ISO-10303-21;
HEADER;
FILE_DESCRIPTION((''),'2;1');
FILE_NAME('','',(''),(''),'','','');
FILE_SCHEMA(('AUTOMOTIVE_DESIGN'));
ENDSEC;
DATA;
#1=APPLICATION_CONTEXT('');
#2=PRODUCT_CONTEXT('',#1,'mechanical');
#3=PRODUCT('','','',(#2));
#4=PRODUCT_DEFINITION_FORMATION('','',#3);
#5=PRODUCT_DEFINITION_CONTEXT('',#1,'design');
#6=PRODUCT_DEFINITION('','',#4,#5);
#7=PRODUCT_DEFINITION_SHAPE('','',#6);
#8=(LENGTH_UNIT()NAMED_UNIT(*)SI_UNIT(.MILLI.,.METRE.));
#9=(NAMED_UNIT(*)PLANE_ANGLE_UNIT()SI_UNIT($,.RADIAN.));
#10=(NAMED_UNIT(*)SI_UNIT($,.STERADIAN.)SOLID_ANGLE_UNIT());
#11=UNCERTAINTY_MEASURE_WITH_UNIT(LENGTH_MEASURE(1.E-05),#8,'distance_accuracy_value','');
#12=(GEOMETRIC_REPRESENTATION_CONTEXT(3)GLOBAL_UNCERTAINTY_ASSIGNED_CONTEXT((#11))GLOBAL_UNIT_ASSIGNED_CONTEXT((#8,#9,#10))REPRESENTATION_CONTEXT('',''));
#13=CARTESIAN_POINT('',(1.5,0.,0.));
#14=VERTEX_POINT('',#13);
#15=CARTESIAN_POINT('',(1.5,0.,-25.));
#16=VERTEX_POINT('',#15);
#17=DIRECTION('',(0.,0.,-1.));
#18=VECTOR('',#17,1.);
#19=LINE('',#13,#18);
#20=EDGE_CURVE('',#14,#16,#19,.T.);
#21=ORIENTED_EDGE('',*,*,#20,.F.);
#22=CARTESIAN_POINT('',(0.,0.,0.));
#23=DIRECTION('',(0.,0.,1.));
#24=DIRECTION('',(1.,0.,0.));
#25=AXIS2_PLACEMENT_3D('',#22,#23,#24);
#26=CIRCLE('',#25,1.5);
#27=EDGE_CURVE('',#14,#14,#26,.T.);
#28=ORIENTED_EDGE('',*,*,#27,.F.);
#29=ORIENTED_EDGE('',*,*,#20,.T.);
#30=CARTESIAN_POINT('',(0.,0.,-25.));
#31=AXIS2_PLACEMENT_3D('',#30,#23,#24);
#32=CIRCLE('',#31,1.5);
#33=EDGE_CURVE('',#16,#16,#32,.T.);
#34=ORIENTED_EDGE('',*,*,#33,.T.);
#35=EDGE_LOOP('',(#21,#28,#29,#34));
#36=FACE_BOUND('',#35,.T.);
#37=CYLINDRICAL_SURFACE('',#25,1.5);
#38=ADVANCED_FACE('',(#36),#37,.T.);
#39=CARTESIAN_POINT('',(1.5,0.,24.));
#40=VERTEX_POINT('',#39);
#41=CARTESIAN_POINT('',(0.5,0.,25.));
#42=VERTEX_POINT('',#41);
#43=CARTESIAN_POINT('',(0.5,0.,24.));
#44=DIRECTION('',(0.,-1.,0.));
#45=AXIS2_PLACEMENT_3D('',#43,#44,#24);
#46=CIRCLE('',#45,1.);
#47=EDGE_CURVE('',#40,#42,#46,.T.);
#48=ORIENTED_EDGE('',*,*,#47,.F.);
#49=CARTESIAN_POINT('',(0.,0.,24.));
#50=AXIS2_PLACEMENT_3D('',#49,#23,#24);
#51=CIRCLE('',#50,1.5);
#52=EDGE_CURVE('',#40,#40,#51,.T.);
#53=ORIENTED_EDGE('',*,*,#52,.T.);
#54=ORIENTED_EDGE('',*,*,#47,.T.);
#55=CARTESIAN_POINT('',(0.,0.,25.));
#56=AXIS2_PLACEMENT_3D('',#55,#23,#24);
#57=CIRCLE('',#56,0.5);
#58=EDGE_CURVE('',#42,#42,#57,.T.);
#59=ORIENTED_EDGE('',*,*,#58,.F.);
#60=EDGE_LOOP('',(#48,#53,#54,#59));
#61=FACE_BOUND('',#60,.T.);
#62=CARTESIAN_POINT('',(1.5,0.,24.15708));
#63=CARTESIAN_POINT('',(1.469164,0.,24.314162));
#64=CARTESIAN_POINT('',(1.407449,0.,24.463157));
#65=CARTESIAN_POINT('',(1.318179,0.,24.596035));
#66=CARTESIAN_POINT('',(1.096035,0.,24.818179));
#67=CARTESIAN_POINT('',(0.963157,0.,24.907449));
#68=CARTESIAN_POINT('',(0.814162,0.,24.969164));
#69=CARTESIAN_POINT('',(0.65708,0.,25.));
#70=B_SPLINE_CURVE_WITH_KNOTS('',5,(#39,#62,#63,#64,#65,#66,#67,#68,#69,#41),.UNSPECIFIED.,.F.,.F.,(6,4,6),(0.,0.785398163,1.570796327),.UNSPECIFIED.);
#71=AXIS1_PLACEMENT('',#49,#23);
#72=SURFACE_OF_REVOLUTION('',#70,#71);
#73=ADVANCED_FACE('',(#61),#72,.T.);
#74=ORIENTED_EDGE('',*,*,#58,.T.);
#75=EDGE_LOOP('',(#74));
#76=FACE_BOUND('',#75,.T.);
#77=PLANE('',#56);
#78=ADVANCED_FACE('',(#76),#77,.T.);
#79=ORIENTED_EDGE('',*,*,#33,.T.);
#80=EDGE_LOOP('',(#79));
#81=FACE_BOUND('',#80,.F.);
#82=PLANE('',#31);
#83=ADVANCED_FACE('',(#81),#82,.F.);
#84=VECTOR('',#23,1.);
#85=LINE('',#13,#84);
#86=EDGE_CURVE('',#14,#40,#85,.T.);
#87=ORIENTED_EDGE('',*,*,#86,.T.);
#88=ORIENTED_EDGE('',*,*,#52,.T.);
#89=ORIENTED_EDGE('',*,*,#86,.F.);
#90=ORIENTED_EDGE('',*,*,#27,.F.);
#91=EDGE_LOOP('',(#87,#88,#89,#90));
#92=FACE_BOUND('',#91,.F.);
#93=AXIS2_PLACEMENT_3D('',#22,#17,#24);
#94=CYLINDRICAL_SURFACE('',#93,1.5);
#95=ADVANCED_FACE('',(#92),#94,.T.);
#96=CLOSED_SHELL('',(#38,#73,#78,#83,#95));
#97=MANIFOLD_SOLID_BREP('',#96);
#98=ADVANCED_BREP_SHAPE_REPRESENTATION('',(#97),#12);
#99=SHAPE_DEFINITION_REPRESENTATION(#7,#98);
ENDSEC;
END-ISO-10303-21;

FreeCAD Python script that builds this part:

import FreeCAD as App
import Part
import Sketcher

V = App.Vector
Q = App.Units.Quantity


def edges_at(feature, points):
    """Names of the edges that pass closest to the given points."""
    edges = feature.Shape.Edges
    near = lambda p: min(range(len(edges)), key=lambda i: edges[i].distToShape(Part.Vertex(*p))[0])
    return sorted({f"Edge{near(p) + 1}" for p in points})

doc = App.newDocument("Part")
body = doc.addObject("PartDesign::Body", "Body")

# Sketch on XY plane
sketch1 = doc.addObject("Sketcher::SketchObject", "Sketch")
body.addObject(sketch1)
sketch1.AttachmentSupport = (doc.XY_Plane, [""])
sketch1.MapMode = "FlatFace"
sketch1.addGeometry(Part.Circle(V(0, 0, 0), V(0, 0, 1), 1.5), False)
sketch1.addConstraint(Sketcher.Constraint("Coincident", 0, 3, -1, 1))
sketch1.addConstraint(Sketcher.Constraint("Diameter", 0, Q("3 mm")))
pad1 = doc.addObject("PartDesign::Pad", "Pad")
body.addObject(pad1)
pad1.Profile = sketch1
pad1.Length = 50
pad1.Midplane = True
doc.recompute()

fillet = doc.addObject("PartDesign::Fillet", "Fillet")
body.addObject(fillet)
fillet.Base = (pad1, edges_at(pad1, [(-1.5, 0, 25)]))
fillet.Radius = 1

doc.recompute()
